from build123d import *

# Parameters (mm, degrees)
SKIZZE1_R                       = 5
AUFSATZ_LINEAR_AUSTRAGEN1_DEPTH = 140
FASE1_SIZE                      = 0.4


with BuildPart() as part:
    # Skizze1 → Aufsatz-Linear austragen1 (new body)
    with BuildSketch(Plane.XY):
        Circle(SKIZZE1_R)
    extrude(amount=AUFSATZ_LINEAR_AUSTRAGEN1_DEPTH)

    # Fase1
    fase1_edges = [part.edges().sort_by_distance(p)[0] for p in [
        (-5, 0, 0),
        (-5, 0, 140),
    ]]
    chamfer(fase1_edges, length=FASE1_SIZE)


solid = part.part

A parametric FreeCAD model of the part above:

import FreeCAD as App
import Part
import Sketcher

V = App.Vector
Q = App.Units.Quantity


def edges_at(feature, points):
    """Names of the edges that pass closest to the given points."""
    edges = feature.Shape.Edges
    near = lambda p: min(range(len(edges)), key=lambda i: edges[i].distToShape(Part.Vertex(*p))[0])
    return sorted({f"Edge{near(p) + 1}" for p in points})

doc = App.newDocument("Part")
body = doc.addObject("PartDesign::Body", "Body")

# Sketch on XY plane
sketch1 = body.newObject("Sketcher::SketchObject", "Sketch")
sketch1.AttachmentSupport = (doc.getObject("XY_Plane"), [""])
sketch1.MapMode = "FlatFace"
sketch1.addGeometry(Part.Circle(V(0, 0, 0), V(0, 0, 1), 5), False)
sketch1.addConstraint([
    Sketcher.Constraint("Coincident", 0, 3, -1, 1),
    Sketcher.Constraint("Diameter", 0, Q("10 mm")),
])
pad1 = body.newObject("PartDesign::Pad", "Pad")
pad1.Profile = sketch1
pad1.Length = 140
doc.recompute()

chamfer = body.newObject("PartDesign::Chamfer", "Chamfer")
chamfer.Base = (pad1, edges_at(pad1, [(-5, 0, 0), (-5, 0, 140)]))
chamfer.Size = 0.4

doc.recompute()
